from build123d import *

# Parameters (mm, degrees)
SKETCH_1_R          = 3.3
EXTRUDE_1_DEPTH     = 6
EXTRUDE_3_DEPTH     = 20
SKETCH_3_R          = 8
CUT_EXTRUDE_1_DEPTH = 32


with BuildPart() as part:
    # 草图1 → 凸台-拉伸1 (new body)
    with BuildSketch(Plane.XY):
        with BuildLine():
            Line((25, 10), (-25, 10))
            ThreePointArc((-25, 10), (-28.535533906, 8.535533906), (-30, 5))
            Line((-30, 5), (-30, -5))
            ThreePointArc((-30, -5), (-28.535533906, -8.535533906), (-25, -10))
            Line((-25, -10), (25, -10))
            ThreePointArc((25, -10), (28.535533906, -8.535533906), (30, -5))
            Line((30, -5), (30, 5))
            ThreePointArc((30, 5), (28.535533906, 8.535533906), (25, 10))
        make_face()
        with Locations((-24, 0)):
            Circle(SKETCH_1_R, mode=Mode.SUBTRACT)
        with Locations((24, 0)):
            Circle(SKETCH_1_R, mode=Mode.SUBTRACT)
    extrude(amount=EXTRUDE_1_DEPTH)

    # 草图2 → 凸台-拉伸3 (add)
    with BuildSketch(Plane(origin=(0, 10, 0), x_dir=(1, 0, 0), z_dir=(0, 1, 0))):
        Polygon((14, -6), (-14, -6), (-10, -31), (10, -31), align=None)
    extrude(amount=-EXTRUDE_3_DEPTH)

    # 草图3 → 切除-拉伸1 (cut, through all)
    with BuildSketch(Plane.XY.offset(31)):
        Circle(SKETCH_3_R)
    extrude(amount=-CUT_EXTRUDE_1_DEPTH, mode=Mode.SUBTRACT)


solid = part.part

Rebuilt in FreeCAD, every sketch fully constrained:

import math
import FreeCAD as App
import Part
import Sketcher


def add_polygon(sketch, points):
    """Adds a closed chain of lines whose ends are joined by coincident constraints."""
    first, n = sketch.GeometryCount, len(points)
    for a, b in zip(points, points[1:] + points[:1]):
        sketch.addGeometry(Part.LineSegment(App.Vector(*a, 0), App.Vector(*b, 0)), False)
    for i in range(n):
        sketch.addConstraint(Sketcher.Constraint("Coincident", first + i, 2, first + (i + 1) % n, 1))

doc = App.newDocument("Part")
params = doc.addObject("Spreadsheet::Sheet", "Params")
for row, (alias, value) in enumerate([
    ("sketch1_radius", "5 mm"),
    ("sketch1_diameter", "6.6 mm"),
    ("sketch1_width", "50 mm"),
    ("sketch1_height", "10 mm"),
    ("pad1_length", "6 mm"),
    ("sketch2_width", "28 mm"),
    ("sketch2_width2", "20 mm"),
    ("pad2_length", "20 mm"),
    ("sketch3_diameter", "16 mm"),
], start=1):
    params.set(f"A{row}", alias)
    params.set(f"B{row}", "=" + value)
    params.setAlias(f"B{row}", alias)

body = doc.addObject("PartDesign::Body", "Body")

# Sketch on XY plane
sketch1 = body.newObject("Sketcher::SketchObject", "Sketch")
sketch1.AttachmentSupport = (doc.getObject("XY_Plane"), [""])
sketch1.MapMode = "FlatFace"
sketch1.addGeometry([
    Part.LineSegment(App.Vector(25, 10, 0), App.Vector(-25, 10, 0)),  # 0
    Part.ArcOfCircle(Part.Circle(App.Vector(-25, 5, 0), App.Vector(0, 0, 1), 5), math.radians(90), math.radians(180)),  # 1
    Part.LineSegment(App.Vector(-30, 5, 0), App.Vector(-30, -5, 0)),  # 2
    Part.ArcOfCircle(Part.Circle(App.Vector(-25, -5, 0), App.Vector(0, 0, 1), 5), math.radians(180), math.radians(270)),  # 3
    Part.LineSegment(App.Vector(-25, -10, 0), App.Vector(25, -10, 0)),  # 4
    Part.ArcOfCircle(Part.Circle(App.Vector(25, -5, 0), App.Vector(0, 0, 1), 5), math.radians(-90), math.radians(0)),  # 5
    Part.LineSegment(App.Vector(30, -5, 0), App.Vector(30, 5, 0)),  # 6
    Part.ArcOfCircle(Part.Circle(App.Vector(25, 5, 0), App.Vector(0, 0, 1), 5), math.radians(0), math.radians(90)),  # 7
    Part.Circle(App.Vector(-24, 0, 0), App.Vector(0, 0, 1), 3.3),  # 8
    Part.Circle(App.Vector(24, 0, 0), App.Vector(0, 0, 1), 3.3),  # 9
], False)
sketch1.addConstraint([
    Sketcher.Constraint("Tangent", 0, 2, 1, 1),
    Sketcher.Constraint("Tangent", 1, 2, 2, 1),
    Sketcher.Constraint("Tangent", 2, 2, 3, 1),
    Sketcher.Constraint("Tangent", 3, 2, 4, 1),
    Sketcher.Constraint("Tangent", 4, 2, 5, 1),
    Sketcher.Constraint("Tangent", 5, 2, 6, 1),
    Sketcher.Constraint("Tangent", 6, 2, 7, 1),
    Sketcher.Constraint("Tangent", 7, 2, 0, 1),
    Sketcher.Constraint("Horizontal", 0),
    Sketcher.Constraint("Vertical", 2),
    Sketcher.Constraint("Horizontal", 4),
    Sketcher.Constraint("Vertical", 6),
    Sketcher.Constraint("Equal", 1, 3),
    Sketcher.Constraint("Equal", 3, 5),
    Sketcher.Constraint("Equal", 5, 7),
    Sketcher.Constraint("Equal", 8, 9),
    Sketcher.Constraint("Symmetric", 1, 3, 5, 3, -1, 1),
    Sketcher.Constraint("Symmetric", 8, 3, 9, 3, -1, 1),
    Sketcher.Constraint("PointOnObject", 8, 3, -1),
    Sketcher.Constraint("Radius", 1, 5.0),
    Sketcher.Constraint("Diameter", 8, 6.6),
    Sketcher.Constraint("DistanceX", 0, 2, 0, 1, 50.0),
    Sketcher.Constraint("DistanceY", 2, 2, 2, 1, 10.0),
    Sketcher.Constraint("DistanceX", 8, 3, -1, 1, 24.0),
])
sketch1.setExpression("Constraints[19]", "Params.sketch1_radius")
sketch1.setExpression("Constraints[20]", "Params.sketch1_diameter")
sketch1.setExpression("Constraints[21]", "Params.sketch1_width")
sketch1.setExpression("Constraints[22]", "Params.sketch1_height")
pad1 = body.newObject("PartDesign::Pad", "Pad")
pad1.Profile = sketch1
pad1.setExpression("Length", "Params.pad1_length")

# Sketch on XZ plane
sketch2 = body.newObject("Sketcher::SketchObject", "Sketch001")
sketch2.AttachmentSupport = (doc.getObject("XZ_Plane"), [""])
sketch2.MapMode = "FlatFace"
sketch2.AttachmentOffset = App.Placement(App.Vector(0, 0, -10), App.Rotation())
add_polygon(sketch2, [(14, 6), (-14, 6), (-10, 31), (10, 31)])  # lines 0-3
sketch2.addConstraint([
    Sketcher.Constraint("Horizontal", 0),
    Sketcher.Constraint("Horizontal", 2),
    Sketcher.Constraint("Equal", 1, 3),
    Sketcher.Constraint("DistanceX", 0, 2, 0, 1, 28.0),
    Sketcher.Constraint("DistanceX", 2, 1, 2, 2, 20.0),
    Sketcher.Constraint("DistanceX", 0, 2, -1, 1, 14.0),
    Sketcher.Constraint("DistanceY", -1, 1, 0, 2, 6.0),
    Sketcher.Constraint("DistanceY", -1, 1, 1, 2, 31.0),
])
sketch2.setExpression("Constraints[7]", "Params.sketch2_width")
sketch2.setExpression("Constraints[8]", "Params.sketch2_width2")
pad2 = body.newObject("PartDesign::Pad", "Pad001")
pad2.Profile = sketch2
pad2.setExpression("Length", "Params.pad2_length")

# Sketch on XY plane
sketch3 = body.newObject("Sketcher::SketchObject", "Sketch002")
sketch3.AttachmentSupport = (doc.getObject("XY_Plane"), [""])
sketch3.MapMode = "FlatFace"
sketch3.AttachmentOffset = App.Placement(App.Vector(0, 0, 31), App.Rotation())
sketch3.addGeometry(Part.Circle(App.Vector(0, 0, 0), App.Vector(0, 0, 1), 8), False)
sketch3.addConstraint([
    Sketcher.Constraint("Coincident", 0, 3, -1, 1),
    Sketcher.Constraint("Diameter", 0, 16.0),
])
sketch3.setExpression("Constraints[1]", "Params.sketch3_diameter")
pocket1 = body.newObject("PartDesign::Pocket", "Pocket")
pocket1.Profile = sketch3
pocket1.Type = "ThroughAll"

doc.recompute()
